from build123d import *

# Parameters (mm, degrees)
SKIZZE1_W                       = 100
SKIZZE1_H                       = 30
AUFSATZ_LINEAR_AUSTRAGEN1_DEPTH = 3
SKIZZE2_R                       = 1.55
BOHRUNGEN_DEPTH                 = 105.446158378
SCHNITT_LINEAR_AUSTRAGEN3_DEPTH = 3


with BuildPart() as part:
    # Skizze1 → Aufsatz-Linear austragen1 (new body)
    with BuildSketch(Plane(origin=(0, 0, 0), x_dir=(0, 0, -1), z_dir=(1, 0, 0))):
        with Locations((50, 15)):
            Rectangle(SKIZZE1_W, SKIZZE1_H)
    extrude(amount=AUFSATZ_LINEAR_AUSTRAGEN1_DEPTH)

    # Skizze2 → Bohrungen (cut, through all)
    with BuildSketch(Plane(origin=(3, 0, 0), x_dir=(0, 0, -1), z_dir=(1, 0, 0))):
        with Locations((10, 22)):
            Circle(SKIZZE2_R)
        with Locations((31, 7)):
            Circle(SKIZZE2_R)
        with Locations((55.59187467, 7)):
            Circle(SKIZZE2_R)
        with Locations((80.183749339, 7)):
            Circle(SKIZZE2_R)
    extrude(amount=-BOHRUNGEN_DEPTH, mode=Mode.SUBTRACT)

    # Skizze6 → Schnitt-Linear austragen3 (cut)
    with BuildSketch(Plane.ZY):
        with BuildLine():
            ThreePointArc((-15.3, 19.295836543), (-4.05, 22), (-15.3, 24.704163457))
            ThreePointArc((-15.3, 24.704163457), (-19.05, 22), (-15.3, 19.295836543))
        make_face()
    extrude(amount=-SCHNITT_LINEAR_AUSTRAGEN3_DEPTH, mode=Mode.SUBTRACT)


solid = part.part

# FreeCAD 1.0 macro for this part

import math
import FreeCAD as App
import Part
import Sketcher

V = App.Vector
Q = App.Units.Quantity

doc = App.newDocument("Part")
body = doc.addObject("PartDesign::Body", "Body")

# Sketch on YZ plane
sketch1 = body.newObject("Sketcher::SketchObject", "Sketch")
sketch1.AttachmentSupport = (doc.getObject("YZ_Plane"), [""])
sketch1.MapMode = "FlatFace"
sketch1.addGeometry(Part.LineSegment(V(30, 0, 0), V(0, 0, 0)), False)
sketch1.addGeometry(Part.LineSegment(V(0, 0, 0), V(0, -100, 0)), False)
sketch1.addGeometry(Part.LineSegment(V(0, -100, 0), V(30, -100, 0)), False)
sketch1.addGeometry(Part.LineSegment(V(30, -100, 0), V(30, 0, 0)), False)
sketch1.addConstraint(Sketcher.Constraint("Coincident", 0, 2, 1, 1))
sketch1.addConstraint(Sketcher.Constraint("Coincident", 1, 2, 2, 1))
sketch1.addConstraint(Sketcher.Constraint("Coincident", 2, 2, 3, 1))
sketch1.addConstraint(Sketcher.Constraint("Coincident", 3, 2, 0, 1))
sketch1.addConstraint(Sketcher.Constraint("Horizontal", 0))
sketch1.addConstraint(Sketcher.Constraint("Vertical", 1))
sketch1.addConstraint(Sketcher.Constraint("Horizontal", 2))
sketch1.addConstraint(Sketcher.Constraint("Vertical", 3))
sketch1.addConstraint(Sketcher.Constraint("Coincident", 0, 2, -1, 1))
sketch1.addConstraint(Sketcher.Constraint("DistanceX", 0, 2, 0, 1, Q("30 mm")))
sketch1.addConstraint(Sketcher.Constraint("DistanceY", 1, 2, 1, 1, Q("100 mm")))
pad1 = body.newObject("PartDesign::Pad", "Pad")
pad1.Profile = sketch1
pad1.Length = 3

# Sketch on YZ plane
sketch2 = body.newObject("Sketcher::SketchObject", "Sketch001")
sketch2.AttachmentSupport = (doc.getObject("YZ_Plane"), [""])
sketch2.MapMode = "FlatFace"
sketch2.AttachmentOffset = App.Placement(V(0, 0, 3), App.Rotation())
sketch2.addGeometry(Part.Circle(V(22, -10, 0), V(0, 0, 1), 1.6), False)
sketch2.addGeometry(Part.Circle(V(7, -31, 0), V(0, 0, 1), 1.6), False)
sketch2.addGeometry(Part.Circle(V(7, -55.6, 0), V(0, 0, 1), 1.6), False)
sketch2.addGeometry(Part.Circle(V(7, -80.2, 0), V(0, 0, 1), 1.6), False)
sketch2.addConstraint(Sketcher.Constraint("Equal", 0, 1))
sketch2.addConstraint(Sketcher.Constraint("Equal", 1, 2))
sketch2.addConstraint(Sketcher.Constraint("Equal", 2, 3))
sketch2.addConstraint(Sketcher.Constraint("Vertical", 1, 3, 2, 3))
sketch2.addConstraint(Sketcher.Constraint("Vertical", 2, 3, 3, 3))
sketch2.addConstraint(Sketcher.Constraint("Diameter", 0, Q("3.1 mm")))
sketch2.addConstraint(Sketcher.Constraint("DistanceX", -1, 1, 0, 3, Q("22 mm")))
sketch2.addConstraint(Sketcher.Constraint("DistanceY", 0, 3, -1, 1, Q("10 mm")))
sketch2.addConstraint(Sketcher.Constraint("DistanceX", -1, 1, 1, 3, Q("7 mm")))
sketch2.addConstraint(Sketcher.Constraint("DistanceY", 1, 3, -1, 1, Q("31 mm")))
sketch2.addConstraint(Sketcher.Constraint("DistanceY", 3, 3, -1, 1, Q("80.183749 mm")))
sketch2.addConstraint(Sketcher.Constraint("DistanceY", 2, 3, -1, 1, Q("55.591875 mm")))
pocket1 = body.newObject("PartDesign::Pocket", "Pocket")
pocket1.Profile = sketch2
pocket1.Type = "ThroughAll"

# Sketch on YZ plane
sketch3 = body.newObject("Sketcher::SketchObject", "Sketch002")
sketch3.AttachmentSupport = (doc.getObject("YZ_Plane"), [""])
sketch3.MapMode = "FlatFace"
sketch3.addGeometry(Part.ArcOfCircle(Part.Circle(V(22, -10, 0), V(0, 0, 1), 6), math.radians(-63), math.radians(243)), False)
sketch3.addGeometry(Part.ArcOfCircle(Part.Circle(V(22, -16.2, 0), V(0, 0, 1), 2.9), math.radians(162), math.radians(378)), False)
sketch3.addConstraint(Sketcher.Constraint("Coincident", 0, 1, 1, 2))
sketch3.addConstraint(Sketcher.Constraint("Coincident", 1, 1, 0, 2))
sketch3.addConstraint(Sketcher.Constraint("Horizontal", 0, 1, 1, 1))
sketch3.addConstraint(Sketcher.Constraint("Radius", 0, Q("5.95 mm")))
sketch3.addConstraint(Sketcher.Constraint("Radius", 1, Q("2.85 mm")))
sketch3.addConstraint(Sketcher.Constraint("DistanceX", -1, 1, 0, 3, Q("22 mm")))
sketch3.addConstraint(Sketcher.Constraint("DistanceY", 0, 3, -1, 1, Q("10 mm")))
sketch3.addConstraint(Sketcher.Constraint("DistanceY", 1, 3, -1, 1, Q("16.2 mm")))
pocket2 = body.newObject("PartDesign::Pocket", "Pocket001")
pocket2.Profile = sketch3
pocket2.Length = 3
pocket2.Reversed = True

doc.recompute()
